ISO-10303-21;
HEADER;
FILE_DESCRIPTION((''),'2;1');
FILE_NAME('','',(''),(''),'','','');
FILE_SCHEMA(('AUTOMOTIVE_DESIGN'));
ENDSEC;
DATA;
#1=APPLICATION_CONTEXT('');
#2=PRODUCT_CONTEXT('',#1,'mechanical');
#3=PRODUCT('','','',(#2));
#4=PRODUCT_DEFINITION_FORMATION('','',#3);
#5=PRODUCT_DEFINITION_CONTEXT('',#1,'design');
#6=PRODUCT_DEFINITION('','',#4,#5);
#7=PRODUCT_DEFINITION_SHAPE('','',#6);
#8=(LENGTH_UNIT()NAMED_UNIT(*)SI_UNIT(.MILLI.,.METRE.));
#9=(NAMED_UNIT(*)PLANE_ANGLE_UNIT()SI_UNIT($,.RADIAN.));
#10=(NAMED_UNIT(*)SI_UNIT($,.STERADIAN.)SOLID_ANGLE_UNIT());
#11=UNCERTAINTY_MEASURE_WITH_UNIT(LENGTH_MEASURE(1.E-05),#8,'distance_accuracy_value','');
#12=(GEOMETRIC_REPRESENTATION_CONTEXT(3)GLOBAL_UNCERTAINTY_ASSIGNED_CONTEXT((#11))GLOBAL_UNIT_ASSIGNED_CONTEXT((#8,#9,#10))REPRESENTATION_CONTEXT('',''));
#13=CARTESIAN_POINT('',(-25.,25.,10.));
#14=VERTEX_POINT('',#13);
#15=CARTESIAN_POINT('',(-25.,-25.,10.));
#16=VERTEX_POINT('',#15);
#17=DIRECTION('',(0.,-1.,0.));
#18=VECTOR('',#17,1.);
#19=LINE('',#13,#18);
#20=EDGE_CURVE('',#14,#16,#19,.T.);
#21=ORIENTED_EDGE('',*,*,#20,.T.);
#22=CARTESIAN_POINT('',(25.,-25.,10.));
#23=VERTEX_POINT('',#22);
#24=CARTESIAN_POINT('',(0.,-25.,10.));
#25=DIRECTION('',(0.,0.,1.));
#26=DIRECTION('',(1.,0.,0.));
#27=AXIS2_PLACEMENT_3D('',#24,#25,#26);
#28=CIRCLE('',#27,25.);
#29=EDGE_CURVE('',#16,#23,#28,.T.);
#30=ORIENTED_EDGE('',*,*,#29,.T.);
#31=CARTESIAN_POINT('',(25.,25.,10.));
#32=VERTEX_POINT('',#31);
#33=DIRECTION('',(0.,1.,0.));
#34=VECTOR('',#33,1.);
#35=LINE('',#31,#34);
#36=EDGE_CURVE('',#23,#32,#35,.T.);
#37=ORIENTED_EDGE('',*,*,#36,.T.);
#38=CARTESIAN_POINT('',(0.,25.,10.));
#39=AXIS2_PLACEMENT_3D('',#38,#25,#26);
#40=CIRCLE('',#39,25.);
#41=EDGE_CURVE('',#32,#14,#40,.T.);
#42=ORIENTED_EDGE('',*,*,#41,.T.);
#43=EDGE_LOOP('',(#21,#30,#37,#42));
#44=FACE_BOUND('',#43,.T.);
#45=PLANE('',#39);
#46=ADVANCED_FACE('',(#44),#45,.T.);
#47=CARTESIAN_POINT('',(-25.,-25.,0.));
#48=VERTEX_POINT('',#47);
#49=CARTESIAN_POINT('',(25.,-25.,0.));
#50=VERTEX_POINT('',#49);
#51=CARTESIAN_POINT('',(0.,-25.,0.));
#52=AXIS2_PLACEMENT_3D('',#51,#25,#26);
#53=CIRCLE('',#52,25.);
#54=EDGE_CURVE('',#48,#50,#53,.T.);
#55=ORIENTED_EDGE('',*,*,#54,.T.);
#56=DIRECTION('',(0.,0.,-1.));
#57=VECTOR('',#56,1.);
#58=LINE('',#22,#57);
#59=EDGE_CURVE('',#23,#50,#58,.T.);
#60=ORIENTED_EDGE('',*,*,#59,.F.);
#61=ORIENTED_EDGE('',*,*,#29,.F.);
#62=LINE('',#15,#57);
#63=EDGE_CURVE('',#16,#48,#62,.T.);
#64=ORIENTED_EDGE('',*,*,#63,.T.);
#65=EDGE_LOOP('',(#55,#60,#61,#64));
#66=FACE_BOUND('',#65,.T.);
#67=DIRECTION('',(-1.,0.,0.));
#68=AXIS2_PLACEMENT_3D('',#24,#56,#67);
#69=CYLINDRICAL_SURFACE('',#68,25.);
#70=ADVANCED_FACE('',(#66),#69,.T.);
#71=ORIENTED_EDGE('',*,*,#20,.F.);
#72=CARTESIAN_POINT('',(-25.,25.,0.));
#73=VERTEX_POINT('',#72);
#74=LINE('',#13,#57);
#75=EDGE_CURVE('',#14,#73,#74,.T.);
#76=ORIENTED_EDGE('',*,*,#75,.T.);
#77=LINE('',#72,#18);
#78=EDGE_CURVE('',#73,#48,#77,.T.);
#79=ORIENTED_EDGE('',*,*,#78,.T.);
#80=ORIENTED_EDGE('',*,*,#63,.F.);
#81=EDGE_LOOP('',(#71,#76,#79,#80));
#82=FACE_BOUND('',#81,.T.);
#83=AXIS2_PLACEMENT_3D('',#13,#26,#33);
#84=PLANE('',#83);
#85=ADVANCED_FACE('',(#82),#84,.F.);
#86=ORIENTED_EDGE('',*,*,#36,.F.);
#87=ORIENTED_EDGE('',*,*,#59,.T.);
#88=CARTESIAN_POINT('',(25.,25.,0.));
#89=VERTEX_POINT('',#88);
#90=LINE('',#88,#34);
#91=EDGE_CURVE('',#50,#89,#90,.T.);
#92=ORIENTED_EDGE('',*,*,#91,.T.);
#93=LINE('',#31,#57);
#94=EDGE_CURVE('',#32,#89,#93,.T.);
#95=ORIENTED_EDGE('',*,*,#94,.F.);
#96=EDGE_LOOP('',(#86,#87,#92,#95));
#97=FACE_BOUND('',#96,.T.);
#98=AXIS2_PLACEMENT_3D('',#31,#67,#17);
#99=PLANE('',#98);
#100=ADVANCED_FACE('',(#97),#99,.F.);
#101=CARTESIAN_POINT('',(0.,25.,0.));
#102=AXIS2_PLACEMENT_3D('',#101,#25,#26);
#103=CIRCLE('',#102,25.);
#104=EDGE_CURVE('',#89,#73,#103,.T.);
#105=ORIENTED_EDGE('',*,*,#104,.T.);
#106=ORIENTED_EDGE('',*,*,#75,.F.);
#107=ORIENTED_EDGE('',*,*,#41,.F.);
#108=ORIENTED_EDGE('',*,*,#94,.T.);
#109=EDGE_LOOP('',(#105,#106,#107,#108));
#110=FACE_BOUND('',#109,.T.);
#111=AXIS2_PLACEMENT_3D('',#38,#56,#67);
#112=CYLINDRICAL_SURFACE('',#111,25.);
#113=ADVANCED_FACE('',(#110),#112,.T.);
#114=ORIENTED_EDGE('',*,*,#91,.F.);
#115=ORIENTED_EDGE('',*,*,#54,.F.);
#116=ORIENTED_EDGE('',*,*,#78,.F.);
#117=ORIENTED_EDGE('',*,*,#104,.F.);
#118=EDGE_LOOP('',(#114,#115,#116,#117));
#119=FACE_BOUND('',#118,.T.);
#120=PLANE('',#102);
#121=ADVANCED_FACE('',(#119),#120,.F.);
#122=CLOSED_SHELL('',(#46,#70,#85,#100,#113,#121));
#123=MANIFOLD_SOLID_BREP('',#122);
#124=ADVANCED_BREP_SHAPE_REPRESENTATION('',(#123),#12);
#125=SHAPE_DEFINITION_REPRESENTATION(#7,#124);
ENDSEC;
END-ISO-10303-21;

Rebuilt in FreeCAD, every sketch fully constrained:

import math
import FreeCAD as App
import Part
import Sketcher

V = App.Vector
Q = App.Units.Quantity

doc = App.newDocument("Part")
params = doc.addObject("Spreadsheet::Sheet", "Params")
for row, (alias, value) in enumerate([
    ("sketch1_radius", "25 mm"),
    ("sketch1_height", "50 mm"),
    ("pad1_length", "10 mm"),
], start=1):
    params.set(f"A{row}", alias)
    params.set(f"B{row}", "=" + value)
    params.setAlias(f"B{row}", alias)

body = doc.addObject("PartDesign::Body", "Body")

sketch1 = body.newObject("Sketcher::SketchObject", "Sketch")
sketch1.AttachmentSupport = (doc.getObject("XY_Plane"), [""])
sketch1.MapMode = "FlatFace"
sketch1.addGeometry([
    Part.LineSegment(V(25, -25, 0), V(25, 25, 0)),
    Part.ArcOfCircle(Part.Circle(V(0, 25, 0), V(0, 0, 1), 25), math.radians(0), math.radians(180)),
    Part.LineSegment(V(-25, 25, 0), V(-25, -25, 0)),
    Part.ArcOfCircle(Part.Circle(V(0, -25, 0), V(0, 0, 1), 25), math.radians(180), math.radians(360)),
], False)
sketch1.addConstraint([
    Sketcher.Constraint("Tangent", 0, 2, 1, 1),
    Sketcher.Constraint("Tangent", 1, 2, 2, 1),
    Sketcher.Constraint("Tangent", 2, 2, 3, 1),
    Sketcher.Constraint("Tangent", 3, 2, 0, 1),
    Sketcher.Constraint("Vertical", 0),
    Sketcher.Constraint("Vertical", 2),
    Sketcher.Constraint("Symmetric", 1, 3, 3, 3, -1, 1),
    Sketcher.Constraint("Radius", 1, Q("25 mm")),
    Sketcher.Constraint("DistanceY", 0, 1, 0, 2, Q("50 mm")),
])
sketch1.setExpression("Constraints[7]", "Params.sketch1_radius")
sketch1.setExpression("Constraints[8]", "Params.sketch1_height")
pad1 = body.newObject("PartDesign::Pad", "Pad")
pad1.Profile = sketch1
pad1.setExpression("Length", "Params.pad1_length")

doc.recompute()
